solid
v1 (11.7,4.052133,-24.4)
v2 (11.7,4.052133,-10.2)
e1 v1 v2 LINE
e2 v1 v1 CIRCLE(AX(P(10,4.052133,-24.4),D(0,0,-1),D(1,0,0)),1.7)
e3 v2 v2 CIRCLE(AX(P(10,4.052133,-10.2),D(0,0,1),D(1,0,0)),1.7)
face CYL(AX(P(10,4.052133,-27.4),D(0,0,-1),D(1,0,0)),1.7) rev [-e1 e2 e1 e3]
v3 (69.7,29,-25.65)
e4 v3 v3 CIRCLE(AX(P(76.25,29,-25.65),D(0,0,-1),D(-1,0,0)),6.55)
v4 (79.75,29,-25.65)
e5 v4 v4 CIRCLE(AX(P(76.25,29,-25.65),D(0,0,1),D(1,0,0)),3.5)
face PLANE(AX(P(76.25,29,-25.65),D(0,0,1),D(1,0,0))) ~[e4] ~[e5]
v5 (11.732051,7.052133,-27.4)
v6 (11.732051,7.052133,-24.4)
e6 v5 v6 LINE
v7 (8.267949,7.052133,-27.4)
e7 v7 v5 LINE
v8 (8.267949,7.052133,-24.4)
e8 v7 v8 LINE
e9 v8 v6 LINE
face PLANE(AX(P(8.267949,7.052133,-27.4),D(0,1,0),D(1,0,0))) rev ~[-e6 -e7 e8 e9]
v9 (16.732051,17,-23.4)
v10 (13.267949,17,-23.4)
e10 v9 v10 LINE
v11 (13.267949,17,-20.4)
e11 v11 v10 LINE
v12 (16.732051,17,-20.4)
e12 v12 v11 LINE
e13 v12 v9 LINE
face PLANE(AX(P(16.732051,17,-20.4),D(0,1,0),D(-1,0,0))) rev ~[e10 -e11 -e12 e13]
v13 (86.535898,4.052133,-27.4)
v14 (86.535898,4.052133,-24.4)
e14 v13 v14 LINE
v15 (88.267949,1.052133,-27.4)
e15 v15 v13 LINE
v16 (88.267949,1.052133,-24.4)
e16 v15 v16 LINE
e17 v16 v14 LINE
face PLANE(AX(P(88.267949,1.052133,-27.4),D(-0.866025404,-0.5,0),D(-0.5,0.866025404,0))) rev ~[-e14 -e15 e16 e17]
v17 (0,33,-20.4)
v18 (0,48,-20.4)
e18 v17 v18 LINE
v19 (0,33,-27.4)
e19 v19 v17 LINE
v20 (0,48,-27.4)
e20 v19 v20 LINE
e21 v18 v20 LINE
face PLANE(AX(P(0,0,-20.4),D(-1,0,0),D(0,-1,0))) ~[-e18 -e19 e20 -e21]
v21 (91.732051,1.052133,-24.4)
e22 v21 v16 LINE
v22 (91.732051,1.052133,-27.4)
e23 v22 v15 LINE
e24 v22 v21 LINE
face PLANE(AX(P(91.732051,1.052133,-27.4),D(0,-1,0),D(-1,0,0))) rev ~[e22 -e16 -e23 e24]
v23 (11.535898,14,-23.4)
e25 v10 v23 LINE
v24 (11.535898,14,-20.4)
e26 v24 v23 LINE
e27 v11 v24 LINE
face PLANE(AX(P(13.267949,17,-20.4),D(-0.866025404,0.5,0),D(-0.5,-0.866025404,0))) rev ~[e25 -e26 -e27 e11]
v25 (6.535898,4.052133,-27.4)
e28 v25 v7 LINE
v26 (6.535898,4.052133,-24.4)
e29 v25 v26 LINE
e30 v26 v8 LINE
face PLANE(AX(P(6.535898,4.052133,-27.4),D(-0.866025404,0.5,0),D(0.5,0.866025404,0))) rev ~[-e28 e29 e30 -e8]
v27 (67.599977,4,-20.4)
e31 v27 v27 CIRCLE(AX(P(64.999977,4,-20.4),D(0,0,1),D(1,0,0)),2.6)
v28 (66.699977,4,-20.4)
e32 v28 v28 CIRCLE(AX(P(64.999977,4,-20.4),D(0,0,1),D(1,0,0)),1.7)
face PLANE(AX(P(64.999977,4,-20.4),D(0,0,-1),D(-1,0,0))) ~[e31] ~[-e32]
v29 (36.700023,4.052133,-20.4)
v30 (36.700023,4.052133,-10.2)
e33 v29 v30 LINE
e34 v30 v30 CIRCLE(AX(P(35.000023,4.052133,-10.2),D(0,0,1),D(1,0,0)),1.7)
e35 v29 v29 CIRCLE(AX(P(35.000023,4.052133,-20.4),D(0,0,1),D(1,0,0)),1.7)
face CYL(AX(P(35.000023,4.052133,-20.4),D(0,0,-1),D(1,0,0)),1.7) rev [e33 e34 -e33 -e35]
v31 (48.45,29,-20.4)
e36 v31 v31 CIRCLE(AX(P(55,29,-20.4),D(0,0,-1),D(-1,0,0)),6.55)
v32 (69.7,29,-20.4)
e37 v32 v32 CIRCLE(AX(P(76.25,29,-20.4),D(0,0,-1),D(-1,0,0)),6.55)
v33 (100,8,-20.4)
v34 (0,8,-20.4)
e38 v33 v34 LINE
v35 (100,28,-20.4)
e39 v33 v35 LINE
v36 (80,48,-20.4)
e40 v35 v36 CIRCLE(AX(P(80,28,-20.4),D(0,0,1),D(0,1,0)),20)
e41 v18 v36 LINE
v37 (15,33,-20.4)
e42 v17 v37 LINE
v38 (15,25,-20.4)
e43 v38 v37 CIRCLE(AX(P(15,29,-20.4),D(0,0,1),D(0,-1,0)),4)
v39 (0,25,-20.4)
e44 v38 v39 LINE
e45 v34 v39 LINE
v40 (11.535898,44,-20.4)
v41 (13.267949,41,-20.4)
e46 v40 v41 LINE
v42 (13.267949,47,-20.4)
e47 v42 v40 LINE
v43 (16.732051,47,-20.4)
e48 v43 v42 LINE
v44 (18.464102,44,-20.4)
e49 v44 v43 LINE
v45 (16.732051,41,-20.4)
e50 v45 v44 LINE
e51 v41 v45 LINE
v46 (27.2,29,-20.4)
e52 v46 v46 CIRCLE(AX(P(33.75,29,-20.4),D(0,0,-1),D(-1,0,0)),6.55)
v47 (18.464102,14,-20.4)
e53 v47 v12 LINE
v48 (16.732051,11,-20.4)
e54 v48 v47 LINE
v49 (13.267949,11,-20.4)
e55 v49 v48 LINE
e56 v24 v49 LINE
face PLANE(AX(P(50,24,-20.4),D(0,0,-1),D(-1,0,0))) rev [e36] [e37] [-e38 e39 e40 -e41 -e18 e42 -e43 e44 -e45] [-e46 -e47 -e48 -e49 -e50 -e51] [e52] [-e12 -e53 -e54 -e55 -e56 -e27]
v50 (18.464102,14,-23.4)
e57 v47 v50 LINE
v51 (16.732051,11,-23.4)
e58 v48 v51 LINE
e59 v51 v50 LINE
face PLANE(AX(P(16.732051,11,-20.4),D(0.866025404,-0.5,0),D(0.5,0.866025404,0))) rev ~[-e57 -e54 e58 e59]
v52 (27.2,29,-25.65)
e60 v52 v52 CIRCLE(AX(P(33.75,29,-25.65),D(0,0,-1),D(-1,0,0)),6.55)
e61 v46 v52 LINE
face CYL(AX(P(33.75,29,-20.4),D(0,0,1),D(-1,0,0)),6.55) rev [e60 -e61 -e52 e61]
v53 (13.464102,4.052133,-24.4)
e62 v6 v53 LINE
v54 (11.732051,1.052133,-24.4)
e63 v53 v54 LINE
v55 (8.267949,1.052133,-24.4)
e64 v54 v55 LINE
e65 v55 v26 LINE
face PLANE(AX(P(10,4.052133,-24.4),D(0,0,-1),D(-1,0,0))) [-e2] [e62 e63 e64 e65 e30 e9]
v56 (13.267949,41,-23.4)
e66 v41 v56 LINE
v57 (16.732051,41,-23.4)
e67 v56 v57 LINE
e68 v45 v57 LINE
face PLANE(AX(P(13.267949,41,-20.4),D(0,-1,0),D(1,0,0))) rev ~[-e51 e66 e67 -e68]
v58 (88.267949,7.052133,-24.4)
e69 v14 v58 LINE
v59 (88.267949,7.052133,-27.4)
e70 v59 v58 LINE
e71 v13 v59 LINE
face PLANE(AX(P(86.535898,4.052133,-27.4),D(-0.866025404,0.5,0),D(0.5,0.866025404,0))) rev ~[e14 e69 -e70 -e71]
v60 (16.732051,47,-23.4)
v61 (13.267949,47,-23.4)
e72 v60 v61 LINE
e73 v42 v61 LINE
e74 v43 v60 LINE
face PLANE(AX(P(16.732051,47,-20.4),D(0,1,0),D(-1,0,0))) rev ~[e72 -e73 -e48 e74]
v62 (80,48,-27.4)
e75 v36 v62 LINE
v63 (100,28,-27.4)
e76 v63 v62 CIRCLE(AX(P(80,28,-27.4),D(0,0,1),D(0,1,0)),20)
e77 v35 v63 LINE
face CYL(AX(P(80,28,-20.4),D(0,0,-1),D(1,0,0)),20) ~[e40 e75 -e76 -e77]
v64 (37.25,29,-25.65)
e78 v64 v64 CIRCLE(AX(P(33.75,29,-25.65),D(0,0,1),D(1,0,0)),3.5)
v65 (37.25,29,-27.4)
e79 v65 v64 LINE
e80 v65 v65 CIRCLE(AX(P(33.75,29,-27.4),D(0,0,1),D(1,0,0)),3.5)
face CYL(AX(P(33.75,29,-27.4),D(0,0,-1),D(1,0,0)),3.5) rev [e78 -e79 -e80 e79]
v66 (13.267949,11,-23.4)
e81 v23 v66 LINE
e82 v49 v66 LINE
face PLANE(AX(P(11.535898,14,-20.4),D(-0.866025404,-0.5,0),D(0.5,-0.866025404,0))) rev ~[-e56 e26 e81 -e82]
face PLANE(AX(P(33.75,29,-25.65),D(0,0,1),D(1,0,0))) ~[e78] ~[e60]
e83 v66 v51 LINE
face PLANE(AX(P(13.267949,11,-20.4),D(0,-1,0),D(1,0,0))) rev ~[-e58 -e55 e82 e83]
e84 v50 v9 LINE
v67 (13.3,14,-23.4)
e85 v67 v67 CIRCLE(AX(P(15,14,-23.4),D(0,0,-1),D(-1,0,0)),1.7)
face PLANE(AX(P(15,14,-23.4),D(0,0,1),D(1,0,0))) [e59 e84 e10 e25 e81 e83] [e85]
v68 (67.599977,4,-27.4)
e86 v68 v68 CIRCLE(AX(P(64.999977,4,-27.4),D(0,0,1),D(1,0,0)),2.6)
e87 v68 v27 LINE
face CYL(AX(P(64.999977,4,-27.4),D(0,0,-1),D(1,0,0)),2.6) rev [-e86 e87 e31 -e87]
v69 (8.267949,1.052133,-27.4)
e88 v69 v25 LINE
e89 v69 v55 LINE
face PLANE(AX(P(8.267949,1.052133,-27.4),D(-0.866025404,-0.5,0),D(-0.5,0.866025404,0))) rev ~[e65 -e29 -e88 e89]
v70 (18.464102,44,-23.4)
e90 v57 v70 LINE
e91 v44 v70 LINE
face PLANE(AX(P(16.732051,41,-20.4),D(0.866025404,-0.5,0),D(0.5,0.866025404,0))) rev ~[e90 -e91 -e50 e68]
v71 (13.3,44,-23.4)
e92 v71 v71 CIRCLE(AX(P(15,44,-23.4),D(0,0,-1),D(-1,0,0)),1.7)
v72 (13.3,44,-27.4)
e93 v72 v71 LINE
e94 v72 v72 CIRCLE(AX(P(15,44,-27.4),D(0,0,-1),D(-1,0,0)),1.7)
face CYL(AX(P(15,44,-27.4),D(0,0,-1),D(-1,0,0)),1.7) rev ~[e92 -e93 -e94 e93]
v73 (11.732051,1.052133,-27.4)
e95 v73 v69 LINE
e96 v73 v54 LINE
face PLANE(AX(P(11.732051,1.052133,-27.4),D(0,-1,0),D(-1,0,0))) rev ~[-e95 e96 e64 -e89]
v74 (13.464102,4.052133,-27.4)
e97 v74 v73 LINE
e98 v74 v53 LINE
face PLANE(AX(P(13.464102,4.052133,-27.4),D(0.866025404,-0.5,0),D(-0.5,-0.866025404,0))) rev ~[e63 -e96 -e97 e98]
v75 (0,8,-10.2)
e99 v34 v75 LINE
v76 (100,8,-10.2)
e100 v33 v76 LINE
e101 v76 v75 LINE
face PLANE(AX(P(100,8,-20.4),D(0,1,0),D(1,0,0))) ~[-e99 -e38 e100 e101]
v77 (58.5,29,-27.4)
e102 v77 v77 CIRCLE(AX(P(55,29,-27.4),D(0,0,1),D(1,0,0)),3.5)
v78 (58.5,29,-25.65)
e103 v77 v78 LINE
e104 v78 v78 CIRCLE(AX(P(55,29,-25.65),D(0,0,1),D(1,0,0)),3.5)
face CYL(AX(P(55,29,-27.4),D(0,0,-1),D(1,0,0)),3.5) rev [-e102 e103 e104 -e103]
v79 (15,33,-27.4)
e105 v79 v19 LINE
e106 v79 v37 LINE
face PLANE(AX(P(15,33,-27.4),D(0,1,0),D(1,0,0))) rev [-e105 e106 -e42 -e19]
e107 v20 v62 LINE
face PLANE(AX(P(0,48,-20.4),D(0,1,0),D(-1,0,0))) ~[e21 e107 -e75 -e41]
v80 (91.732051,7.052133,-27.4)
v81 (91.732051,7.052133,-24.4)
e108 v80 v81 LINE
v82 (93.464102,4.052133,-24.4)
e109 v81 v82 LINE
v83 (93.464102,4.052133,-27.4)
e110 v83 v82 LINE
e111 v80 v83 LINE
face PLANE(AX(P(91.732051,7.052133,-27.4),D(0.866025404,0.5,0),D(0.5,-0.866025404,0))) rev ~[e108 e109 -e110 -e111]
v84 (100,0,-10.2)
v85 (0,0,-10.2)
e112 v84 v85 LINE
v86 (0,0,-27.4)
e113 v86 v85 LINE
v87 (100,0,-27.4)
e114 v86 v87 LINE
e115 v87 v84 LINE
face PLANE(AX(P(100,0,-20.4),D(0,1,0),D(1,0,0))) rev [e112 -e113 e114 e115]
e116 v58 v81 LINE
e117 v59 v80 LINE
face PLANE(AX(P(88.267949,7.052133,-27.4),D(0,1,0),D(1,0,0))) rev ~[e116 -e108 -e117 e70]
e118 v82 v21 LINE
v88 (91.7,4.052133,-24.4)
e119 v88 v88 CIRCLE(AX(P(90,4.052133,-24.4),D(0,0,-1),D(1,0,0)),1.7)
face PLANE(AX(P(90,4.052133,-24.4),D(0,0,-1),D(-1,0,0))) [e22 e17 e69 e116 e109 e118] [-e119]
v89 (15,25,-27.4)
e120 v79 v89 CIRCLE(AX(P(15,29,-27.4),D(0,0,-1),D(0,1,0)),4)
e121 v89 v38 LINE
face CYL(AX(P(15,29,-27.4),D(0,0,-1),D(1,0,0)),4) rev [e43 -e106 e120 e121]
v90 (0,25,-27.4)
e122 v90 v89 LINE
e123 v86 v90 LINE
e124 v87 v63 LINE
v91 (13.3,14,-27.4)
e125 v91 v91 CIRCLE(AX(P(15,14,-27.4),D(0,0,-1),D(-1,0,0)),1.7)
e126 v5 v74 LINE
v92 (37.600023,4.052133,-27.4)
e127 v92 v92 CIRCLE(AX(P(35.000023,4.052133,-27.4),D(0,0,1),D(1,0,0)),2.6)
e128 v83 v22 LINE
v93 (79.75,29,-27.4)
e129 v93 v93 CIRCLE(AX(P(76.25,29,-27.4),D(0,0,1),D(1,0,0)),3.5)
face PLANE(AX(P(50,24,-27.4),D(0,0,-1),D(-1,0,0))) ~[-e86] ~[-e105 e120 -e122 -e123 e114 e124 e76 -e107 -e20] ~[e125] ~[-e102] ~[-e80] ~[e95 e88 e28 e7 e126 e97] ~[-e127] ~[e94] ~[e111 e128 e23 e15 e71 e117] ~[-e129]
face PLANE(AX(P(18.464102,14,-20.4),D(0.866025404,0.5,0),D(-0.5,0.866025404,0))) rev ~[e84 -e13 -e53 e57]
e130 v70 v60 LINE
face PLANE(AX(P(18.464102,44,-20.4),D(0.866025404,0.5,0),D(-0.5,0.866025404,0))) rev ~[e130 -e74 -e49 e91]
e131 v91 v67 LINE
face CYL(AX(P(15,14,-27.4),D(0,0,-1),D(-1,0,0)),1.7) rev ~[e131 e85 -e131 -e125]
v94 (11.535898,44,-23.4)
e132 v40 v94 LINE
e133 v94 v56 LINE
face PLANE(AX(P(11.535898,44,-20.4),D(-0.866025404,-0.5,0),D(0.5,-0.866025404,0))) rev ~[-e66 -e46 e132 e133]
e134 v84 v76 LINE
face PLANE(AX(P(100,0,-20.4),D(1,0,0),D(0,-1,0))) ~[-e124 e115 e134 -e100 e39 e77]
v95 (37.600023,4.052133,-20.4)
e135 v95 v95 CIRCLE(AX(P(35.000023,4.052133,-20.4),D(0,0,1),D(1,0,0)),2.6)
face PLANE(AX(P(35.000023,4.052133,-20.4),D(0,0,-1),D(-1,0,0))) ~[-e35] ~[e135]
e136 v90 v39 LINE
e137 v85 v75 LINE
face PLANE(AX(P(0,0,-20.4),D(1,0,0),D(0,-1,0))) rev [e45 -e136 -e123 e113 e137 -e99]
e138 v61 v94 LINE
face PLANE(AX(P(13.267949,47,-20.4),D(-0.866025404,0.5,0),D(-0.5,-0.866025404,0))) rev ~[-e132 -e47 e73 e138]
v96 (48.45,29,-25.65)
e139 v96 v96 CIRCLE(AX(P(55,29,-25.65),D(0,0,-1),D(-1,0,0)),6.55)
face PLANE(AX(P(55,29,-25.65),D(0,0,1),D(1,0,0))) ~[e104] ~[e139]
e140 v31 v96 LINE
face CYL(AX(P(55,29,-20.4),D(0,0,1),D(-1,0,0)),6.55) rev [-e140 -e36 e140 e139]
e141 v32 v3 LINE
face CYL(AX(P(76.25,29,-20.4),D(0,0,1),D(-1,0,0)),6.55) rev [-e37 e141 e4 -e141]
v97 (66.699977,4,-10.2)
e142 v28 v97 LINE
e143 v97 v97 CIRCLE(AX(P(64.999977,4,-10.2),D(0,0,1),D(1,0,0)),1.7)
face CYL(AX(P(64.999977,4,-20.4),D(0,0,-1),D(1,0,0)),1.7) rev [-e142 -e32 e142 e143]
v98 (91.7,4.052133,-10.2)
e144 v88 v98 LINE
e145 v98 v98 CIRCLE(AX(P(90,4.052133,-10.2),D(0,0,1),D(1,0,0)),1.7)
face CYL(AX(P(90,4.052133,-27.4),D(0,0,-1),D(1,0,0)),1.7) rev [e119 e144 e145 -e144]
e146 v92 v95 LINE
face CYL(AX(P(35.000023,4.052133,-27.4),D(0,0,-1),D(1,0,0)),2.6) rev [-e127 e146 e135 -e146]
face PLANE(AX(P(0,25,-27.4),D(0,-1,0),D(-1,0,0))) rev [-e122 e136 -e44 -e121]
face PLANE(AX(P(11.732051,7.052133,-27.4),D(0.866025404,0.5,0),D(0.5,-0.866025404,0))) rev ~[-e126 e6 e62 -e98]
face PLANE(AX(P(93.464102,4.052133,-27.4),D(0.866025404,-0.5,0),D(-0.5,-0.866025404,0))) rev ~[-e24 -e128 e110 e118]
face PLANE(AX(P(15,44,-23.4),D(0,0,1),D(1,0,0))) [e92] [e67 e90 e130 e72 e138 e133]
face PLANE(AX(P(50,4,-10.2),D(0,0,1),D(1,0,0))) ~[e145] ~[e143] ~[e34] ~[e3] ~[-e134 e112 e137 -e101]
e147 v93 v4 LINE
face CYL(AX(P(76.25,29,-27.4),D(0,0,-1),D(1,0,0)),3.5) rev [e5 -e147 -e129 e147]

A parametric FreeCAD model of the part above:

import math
import FreeCAD as App
import Part
import Sketcher
Q = App.Units.Quantity


def edges_at(feature, points):
    """Names of the edges that pass closest to the given points."""
    edges = feature.Shape.Edges
    near = lambda p: min(range(len(edges)), key=lambda i: edges[i].distToShape(Part.Vertex(*p))[0])
    return sorted({f"Edge{near(p) + 1}" for p in points})


def add_polygon(sketch, points):
    """Adds a closed chain of lines whose ends are joined by coincident constraints."""
    first, n = sketch.GeometryCount, len(points)
    for a, b in zip(points, points[1:] + points[:1]):
        sketch.addGeometry(Part.LineSegment(App.Vector(*a, 0), App.Vector(*b, 0)), False)
    for i in range(n):
        sketch.addConstraint(Sketcher.Constraint("Coincident", first + i, 2, first + (i + 1) % n, 1))

doc = App.newDocument("Part")
params = doc.addObject("Spreadsheet::Sheet", "Params")
for row, (alias, value) in enumerate([
    ("sketch1_width", "100 mm"),
    ("sketch1_height", "48 mm"),
    ("pad1_length", "7 mm"),
    ("sketch2_radius", "4 mm"),
    ("sketch2_width", "15 mm"),
    ("sketch3_diameter", "8 mm"),
    ("sketch4_diameter", "7 mm"),
    ("sketch5_diameter", "7 mm"),
    ("sketch6_diameter", "7 mm"),
    ("sketch7_width", "100 mm"),
    ("sketch7_height", "8 mm"),
    ("pad2_length", "10.2 mm"),
    ("sketch8_diameter", "13.1 mm"),
    ("pocket6_length", "5.25 mm"),
    ("sketch9_diameter", "5.2 mm"),
    ("pocket7_length", "7 mm"),
    ("sketch10_diameter", "3.4 mm"),
    ("sketch11_diameter", "3.4 mm"),
    ("sketch12_diameter", "3.4 mm"),
    ("pocket11_length", "3 mm"),
    ("sketch14_diameter", "3.4 mm"),
    ("sketch15_diameter", "3.4 mm"),
    ("pocket14_length", "3 mm"),
    ("fillet_radius", "20 mm"),
], start=1):
    params.set(f"A{row}", alias)
    params.set(f"B{row}", "=" + value)
    params.setAlias(f"B{row}", alias)

body = doc.addObject("PartDesign::Body", "Body")

# Sketch on XY plane
sketch1 = body.newObject("Sketcher::SketchObject", "Sketch")
sketch1.AttachmentSupport = (doc.getObject("XY_Plane"), [""])
sketch1.MapMode = "FlatFace"
add_polygon(sketch1, [(0, 48), (0, 0), (100, 0), (100, 48)])  # lines 0-3
sketch1.addConstraint(Sketcher.Constraint("Vertical", 0))
sketch1.addConstraint(Sketcher.Constraint("Horizontal", 1))
sketch1.addConstraint(Sketcher.Constraint("Vertical", 2))
sketch1.addConstraint(Sketcher.Constraint("Horizontal", 3))
sketch1.addConstraint(Sketcher.Constraint("Coincident", 0, 2, -1, 1))
sketch1.addConstraint(Sketcher.Constraint("DistanceX", 1, 1, 1, 2, 100.0))
sketch1.addConstraint(Sketcher.Constraint("DistanceY", 0, 2, 0, 1, 48.0))
sketch1.setExpression("Constraints[9]", "Params.sketch1_width")
sketch1.setExpression("Constraints[10]", "Params.sketch1_height")
pad1 = body.newObject("PartDesign::Pad", "Pad")
pad1.Profile = sketch1
pad1.setExpression("Length", "Params.pad1_length")

# Sketch on XY plane
sketch2 = body.newObject("Sketcher::SketchObject", "Sketch001")
sketch2.AttachmentSupport = (doc.getObject("XY_Plane"), [""])
sketch2.MapMode = "FlatFace"
sketch2.AttachmentOffset = App.Placement(App.Vector(0, 0, 7), App.Rotation())
sketch2.addGeometry(Part.ArcOfCircle(Part.Circle(App.Vector(15, 29, 0), App.Vector(0, 0, 1), 4), math.radians(90), math.radians(270)), False)
sketch2.addGeometry(Part.LineSegment(App.Vector(15, 33, 0), App.Vector(0, 33, 0)), False)
sketch2.addGeometry(Part.LineSegment(App.Vector(0, 33, 0), App.Vector(0, 25, 0)), False)
sketch2.addGeometry(Part.LineSegment(App.Vector(0, 25, 0), App.Vector(15, 25, 0)), False)
sketch2.addConstraint(Sketcher.Constraint("Tangent", 0, 1, 1, 1))
sketch2.addConstraint(Sketcher.Constraint("Coincident", 1, 2, 2, 1))
sketch2.addConstraint(Sketcher.Constraint("Coincident", 2, 2, 3, 1))
sketch2.addConstraint(Sketcher.Constraint("Tangent", 3, 2, 0, 2))
sketch2.addConstraint(Sketcher.Constraint("Horizontal", 1))
sketch2.addConstraint(Sketcher.Constraint("Vertical", 2))
sketch2.addConstraint(Sketcher.Constraint("Horizontal", 3))
sketch2.addConstraint(Sketcher.Constraint("PointOnObject", 1, 2, -2))
sketch2.addConstraint(Sketcher.Constraint("Radius", 0, 4.0))
sketch2.addConstraint(Sketcher.Constraint("DistanceX", 1, 2, 1, 1, 15.0))
sketch2.addConstraint(Sketcher.Constraint("DistanceY", -1, 1, 0, 3, 29.0))
sketch2.setExpression("Constraints[8]", "Params.sketch2_radius")
sketch2.setExpression("Constraints[9]", "Params.sketch2_width")
pocket1 = body.newObject("PartDesign::Pocket", "Pocket")
pocket1.Profile = sketch2
pocket1.Type = "UpToFirst"

# Sketch on XY plane
sketch3 = body.newObject("Sketcher::SketchObject", "Sketch002")
sketch3.AttachmentSupport = (doc.getObject("XY_Plane"), [""])
sketch3.MapMode = "FlatFace"
sketch3.AttachmentOffset = App.Placement(App.Vector(0, 0, 7), App.Rotation())
sketch3.addGeometry(Part.Circle(App.Vector(15, 29, 0), App.Vector(0, 0, 1), 4), False)
sketch3.addConstraint(Sketcher.Constraint("Diameter", 0, 8.0))
sketch3.addConstraint(Sketcher.Constraint("DistanceX", -1, 1, 0, 3, 15.0))
sketch3.addConstraint(Sketcher.Constraint("DistanceY", -1, 1, 0, 3, 29.0))
sketch3.setExpression("Constraints[0]", "Params.sketch3_diameter")
pocket2 = body.newObject("PartDesign::Pocket", "Pocket001")
pocket2.Profile = sketch3
pocket2.Type = "UpToFirst"

# Sketch on XY plane
sketch4 = body.newObject("Sketcher::SketchObject", "Sketch003")
sketch4.AttachmentSupport = (doc.getObject("XY_Plane"), [""])
sketch4.MapMode = "FlatFace"
sketch4.AttachmentOffset = App.Placement(App.Vector(0, 0, 7), App.Rotation())
sketch4.addGeometry(Part.Circle(App.Vector(33.8, 29, 0), App.Vector(0, 0, 1), 3.5), False)
sketch4.addConstraint(Sketcher.Constraint("Diameter", 0, 7.0))
sketch4.addConstraint(Sketcher.Constraint("DistanceY", -1, 1, 0, 3, 29.0))
sketch4.addConstraint(Sketcher.Constraint("DistanceX", -1, 1, 0, 3, 33.75))
sketch4.setExpression("Constraints[0]", "Params.sketch4_diameter")
pocket3 = body.newObject("PartDesign::Pocket", "Pocket002")
pocket3.Profile = sketch4
pocket3.Type = "UpToFirst"

# Sketch on XY plane
sketch5 = body.newObject("Sketcher::SketchObject", "Sketch004")
sketch5.AttachmentSupport = (doc.getObject("XY_Plane"), [""])
sketch5.MapMode = "FlatFace"
sketch5.AttachmentOffset = App.Placement(App.Vector(0, 0, 7), App.Rotation())
sketch5.addGeometry(Part.Circle(App.Vector(55, 29, 0), App.Vector(0, 0, 1), 3.5), False)
sketch5.addConstraint(Sketcher.Constraint("Diameter", 0, 7.0))
sketch5.addConstraint(Sketcher.Constraint("DistanceX", -1, 1, 0, 3, 55.0))
sketch5.addConstraint(Sketcher.Constraint("DistanceY", -1, 1, 0, 3, 29.0))
sketch5.setExpression("Constraints[0]", "Params.sketch5_diameter")
pocket4 = body.newObject("PartDesign::Pocket", "Pocket003")
pocket4.Profile = sketch5
pocket4.Type = "UpToFirst"

# Sketch on XY plane
sketch6 = body.newObject("Sketcher::SketchObject", "Sketch005")
sketch6.AttachmentSupport = (doc.getObject("XY_Plane"), [""])
sketch6.MapMode = "FlatFace"
sketch6.AttachmentOffset = App.Placement(App.Vector(0, 0, 7), App.Rotation())
sketch6.addGeometry(Part.Circle(App.Vector(76.2, 29, 0), App.Vector(0, 0, 1), 3.5), False)
sketch6.addConstraint(Sketcher.Constraint("Diameter", 0, 7.0))
sketch6.addConstraint(Sketcher.Constraint("DistanceY", -1, 1, 0, 3, 29.0))
sketch6.addConstraint(Sketcher.Constraint("DistanceX", -1, 1, 0, 3, 76.25))
sketch6.setExpression("Constraints[0]", "Params.sketch6_diameter")
pocket5 = body.newObject("PartDesign::Pocket", "Pocket004")
pocket5.Profile = sketch6
pocket5.Type = "UpToFirst"

# Sketch on XY plane
sketch7 = body.newObject("Sketcher::SketchObject", "Sketch006")
sketch7.AttachmentSupport = (doc.getObject("XY_Plane"), [""])
sketch7.MapMode = "FlatFace"
add_polygon(sketch7, [(100, 8), (100, 0), (0, 0), (0, 8)])  # lines 0-3
sketch7.addConstraint(Sketcher.Constraint("Vertical", 0))
sketch7.addConstraint(Sketcher.Constraint("Horizontal", 1))
sketch7.addConstraint(Sketcher.Constraint("Vertical", 2))
sketch7.addConstraint(Sketcher.Constraint("Horizontal", 3))
sketch7.addConstraint(Sketcher.Constraint("Coincident", 1, 2, -1, 1))
sketch7.addConstraint(Sketcher.Constraint("DistanceX", 1, 2, 1, 1, 100.0))
sketch7.addConstraint(Sketcher.Constraint("DistanceY", 0, 2, 0, 1, 8.0))
sketch7.setExpression("Constraints[9]", "Params.sketch7_width")
sketch7.setExpression("Constraints[10]", "Params.sketch7_height")
pad2 = body.newObject("PartDesign::Pad", "Pad001")
pad2.Profile = sketch7
pad2.setExpression("Length", "Params.pad2_length")
pad2.Reversed = True

# Sketch on XY plane
sketch8 = body.newObject("Sketcher::SketchObject", "Sketch007")
sketch8.AttachmentSupport = (doc.getObject("XY_Plane"), [""])
sketch8.MapMode = "FlatFace"
sketch8.addGeometry(Part.Circle(App.Vector(76, 29, 0), App.Vector(0, 0, 1), 7), False)
sketch8.addGeometry(Part.Circle(App.Vector(55, 29, 0), App.Vector(0, 0, 1), 7), False)
sketch8.addGeometry(Part.Circle(App.Vector(34, 29, 0), App.Vector(0, 0, 1), 7), False)
sketch8.addConstraint(Sketcher.Constraint("Equal", 0, 1))
sketch8.addConstraint(Sketcher.Constraint("Equal", 1, 2))
sketch8.addConstraint(Sketcher.Constraint("Horizontal", 0, 3, 1, 3))
sketch8.addConstraint(Sketcher.Constraint("Horizontal", 1, 3, 2, 3))
sketch8.addConstraint(Sketcher.Constraint("Diameter", 0, 13.1))
sketch8.addConstraint(Sketcher.Constraint("DistanceY", -1, 1, 0, 3, 29.0))
sketch8.addConstraint(Sketcher.Constraint("DistanceX", -1, 1, 1, 3, 55.0))
sketch8.addConstraint(Sketcher.Constraint("DistanceX", 2, 3, 0, 3, 42.5))
sketch8.addConstraint(Sketcher.Constraint("DistanceX", -1, 1, 0, 3, 76.25))
sketch8.setExpression("Constraints[4]", "Params.sketch8_diameter")
pocket6 = body.newObject("PartDesign::Pocket", "Pocket005")
pocket6.Profile = sketch8
pocket6.setExpression("Length", "Params.pocket6_length")
pocket6.Reversed = True

# Sketch on XY plane
sketch9 = body.newObject("Sketcher::SketchObject", "Sketch008")
sketch9.AttachmentSupport = (doc.getObject("XY_Plane"), [""])
sketch9.MapMode = "FlatFace"
sketch9.AttachmentOffset = App.Placement(App.Vector(0, 0, 7), App.Rotation())
sketch9.addGeometry(Part.Circle(App.Vector(35.000023, 4.052133, 0), App.Vector(0, 0, 1), 2.6), False)
sketch9.addGeometry(Part.Circle(App.Vector(64.999977, 4, 0), App.Vector(0, 0, 1), 2.6), False)
sketch9.addConstraint(Sketcher.Constraint("Equal", 0, 1))
sketch9.addConstraint(Sketcher.Constraint("Diameter", 0, 5.2))
sketch9.addConstraint(Sketcher.Constraint("DistanceY", -1, 1, 1, 3, 4.0))
sketch9.addConstraint(Sketcher.Constraint("DistanceX", -1, 1, 0, 3, 35.000023))
sketch9.addConstraint(Sketcher.Constraint("DistanceY", -1, 1, 0, 3, 4.052133))
sketch9.addConstraint(Sketcher.Constraint("DistanceX", -1, 1, 1, 3, 64.999977))
sketch9.setExpression("Constraints[1]", "Params.sketch9_diameter")
pocket7 = body.newObject("PartDesign::Pocket", "Pocket006")
pocket7.Profile = sketch9
pocket7.setExpression("Length", "Params.pocket7_length")

# Sketch on XY plane
sketch10 = body.newObject("Sketcher::SketchObject", "Sketch009")
sketch10.AttachmentSupport = (doc.getObject("XY_Plane"), [""])
sketch10.MapMode = "FlatFace"
sketch10.addGeometry(Part.Circle(App.Vector(35.000023, 4.052133, 0), App.Vector(0, 0, 1), 1.7), False)
sketch10.addGeometry(Part.Circle(App.Vector(64.999977, 4, 0), App.Vector(0, 0, 1), 1.7), False)
sketch10.addConstraint(Sketcher.Constraint("Equal", 0, 1))
sketch10.addConstraint(Sketcher.Constraint("Diameter", 0, 3.4))
sketch10.addConstraint(Sketcher.Constraint("DistanceY", -1, 1, 1, 3, 4.0))
sketch10.addConstraint(Sketcher.Constraint("DistanceX", -1, 1, 0, 3, 35.000023))
sketch10.addConstraint(Sketcher.Constraint("DistanceY", -1, 1, 0, 3, 4.052133))
sketch10.addConstraint(Sketcher.Constraint("DistanceX", -1, 1, 1, 3, 64.999977))
sketch10.setExpression("Constraints[1]", "Params.sketch10_diameter")
pocket8 = body.newObject("PartDesign::Pocket", "Pocket007")
pocket8.Profile = sketch10
pocket8.Type = "ThroughAll"

# Sketch on XY plane
sketch11 = body.newObject("Sketcher::SketchObject", "Sketch010")
sketch11.AttachmentSupport = (doc.getObject("XY_Plane"), [""])
sketch11.MapMode = "FlatFace"
sketch11.AttachmentOffset = App.Placement(App.Vector(0, 0, 7), App.Rotation())
sketch11.addGeometry(Part.Circle(App.Vector(10, 4.1, 0), App.Vector(0, 0, 1), 1.7), False)
sketch11.addConstraint(Sketcher.Constraint("Diameter", 0, 3.4))
sketch11.addConstraint(Sketcher.Constraint("DistanceX", -1, 1, 0, 3, 10.0))
sketch11.addConstraint(Sketcher.Constraint("DistanceY", -1, 1, 0, 3, 4.052133))
sketch11.setExpression("Constraints[0]", "Params.sketch11_diameter")
pocket9 = body.newObject("PartDesign::Pocket", "Pocket008")
pocket9.Profile = sketch11
pocket9.Type = "UpToFirst"

# Sketch on XY plane
sketch12 = body.newObject("Sketcher::SketchObject", "Sketch011")
sketch12.AttachmentSupport = (doc.getObject("XY_Plane"), [""])
sketch12.MapMode = "FlatFace"
sketch12.AttachmentOffset = App.Placement(App.Vector(0, 0, 7), App.Rotation())
sketch12.addGeometry(Part.Circle(App.Vector(90, 4.1, 0), App.Vector(0, 0, 1), 1.7), False)
sketch12.addConstraint(Sketcher.Constraint("Diameter", 0, 3.4))
sketch12.addConstraint(Sketcher.Constraint("DistanceX", -1, 1, 0, 3, 90.0))
sketch12.addConstraint(Sketcher.Constraint("DistanceY", -1, 1, 0, 3, 4.052133))
sketch12.setExpression("Constraints[0]", "Params.sketch12_diameter")
pocket10 = body.newObject("PartDesign::Pocket", "Pocket009")
pocket10.Profile = sketch12
pocket10.Type = "UpToFirst"
body2 = doc.addObject("PartDesign::Body", "Body001")
doc.recompute()

mirroring = doc.addObject("Part::Mirroring", "Mirroring")
mirroring.Source = body
mirroring.Base = App.Vector(0, 0, -10.2)
mirroring.Normal = App.Vector(0, 0, 1)
body2.BaseFeature = mirroring
doc.recompute()

# Sketch on XY plane
sketch13 = body2.newObject("Sketcher::SketchObject", "Sketch012")
sketch13.AttachmentSupport = (doc.getObject("XY_Plane001"), [""])
sketch13.MapMode = "FlatFace"
sketch13.AttachmentOffset = App.Placement(App.Vector(0, 0, -27.4), App.Rotation())
add_polygon(sketch13, [(88.3, 1.1), (86.5, 4.1), (88.3, 7.1), (91.7, 7.1), (93.5, 4.1), (91.7, 1.1)])  # lines 0-5
add_polygon(sketch13, [(13.5, 4.1), (11.7, 1.1), (8.3, 1.1), (6.5, 4.1), (8.3, 7.1), (11.7, 7.1)])  # lines 6-11
sketch13.addConstraint(Sketcher.Constraint("Horizontal", 2))
sketch13.addConstraint(Sketcher.Constraint("Horizontal", 5))
sketch13.addConstraint(Sketcher.Constraint("Horizontal", 7))
sketch13.addConstraint(Sketcher.Constraint("Horizontal", 10))
sketch13.addConstraint(Sketcher.Constraint("Parallel", 0, 3))
sketch13.addConstraint(Sketcher.Constraint("Parallel", 1, 4))
sketch13.addConstraint(Sketcher.Constraint("Parallel", 4, 6))
sketch13.addConstraint(Sketcher.Constraint("Parallel", 3, 8))
sketch13.addConstraint(Sketcher.Constraint("Parallel", 6, 9))
sketch13.addConstraint(Sketcher.Constraint("Parallel", 8, 11))
sketch13.addConstraint(Sketcher.Constraint("Horizontal", 0, 2, 3, 2))
sketch13.addConstraint(Sketcher.Constraint("Horizontal", 5, 2, 6, 2))
sketch13.addConstraint(Sketcher.Constraint("Horizontal", 3, 2, 8, 2))
sketch13.addConstraint(Sketcher.Constraint("Horizontal", 2, 2, 9, 2))
sketch13.addConstraint(Sketcher.Constraint("Horizontal", 8, 2, 11, 2))
sketch13.addConstraint(Sketcher.Constraint("Vertical", 2, 2, 4, 2))
sketch13.addConstraint(Sketcher.Constraint("Vertical", 1, 2, 5, 2))
sketch13.addConstraint(Sketcher.Constraint("Equal", 5, 7))
sketch13.addConstraint(Sketcher.Constraint("Angle", 0, Q("120 deg")))
sketch13.addConstraint(Sketcher.Constraint("DistanceY", 0, 2, 1, 2, 3.0))
sketch13.addConstraint(Sketcher.Constraint("DistanceX", 6, 2, 4, 2, 80.0))
sketch13.addConstraint(Sketcher.Constraint("DistanceX", 2, 1, 2, 2, 3.464102))
sketch13.addConstraint(Sketcher.Constraint("DistanceX", -1, 1, 0, 2, 86.535898))
sketch13.addConstraint(Sketcher.Constraint("DistanceY", -1, 1, 0, 2, 4.052133))
pocket11 = body2.newObject("PartDesign::Pocket", "Pocket010")
pocket11.Profile = sketch13
pocket11.setExpression("Length", "Params.pocket11_length")
pocket11.Reversed = True

# Sketch on XY plane
sketch14 = body2.newObject("Sketcher::SketchObject", "Sketch013")
sketch14.AttachmentSupport = (doc.getObject("XY_Plane001"), [""])
sketch14.MapMode = "FlatFace"
sketch14.AttachmentOffset = App.Placement(App.Vector(0, 0, -27.4), App.Rotation())
sketch14.addGeometry(Part.Circle(App.Vector(15, 44, 0), App.Vector(0, 0, 1), 1.7), False)
sketch14.addConstraint(Sketcher.Constraint("Diameter", 0, 3.4))
sketch14.addConstraint(Sketcher.Constraint("DistanceX", -1, 1, 0, 3, 15.0))
sketch14.addConstraint(Sketcher.Constraint("DistanceY", -1, 1, 0, 3, 44.0))
sketch14.setExpression("Constraints[0]", "Params.sketch14_diameter")
pocket12 = body2.newObject("PartDesign::Pocket", "Pocket011")
pocket12.Profile = sketch14
pocket12.Type = "UpToFirst"
pocket12.Reversed = True

# Sketch on XY plane
sketch15 = body2.newObject("Sketcher::SketchObject", "Sketch014")
sketch15.AttachmentSupport = (doc.getObject("XY_Plane001"), [""])
sketch15.MapMode = "FlatFace"
sketch15.AttachmentOffset = App.Placement(App.Vector(0, 0, -27.4), App.Rotation())
sketch15.addGeometry(Part.Circle(App.Vector(15, 14, 0), App.Vector(0, 0, 1), 1.7), False)
sketch15.addConstraint(Sketcher.Constraint("Diameter", 0, 3.4))
sketch15.addConstraint(Sketcher.Constraint("DistanceX", -1, 1, 0, 3, 15.0))
sketch15.addConstraint(Sketcher.Constraint("DistanceY", -1, 1, 0, 3, 14.0))
sketch15.setExpression("Constraints[0]", "Params.sketch15_diameter")
pocket13 = body2.newObject("PartDesign::Pocket", "Pocket012")
pocket13.Profile = sketch15
pocket13.Type = "UpToFirst"
pocket13.Reversed = True

# Sketch on XY plane
sketch16 = body2.newObject("Sketcher::SketchObject", "Sketch015")
sketch16.AttachmentSupport = (doc.getObject("XY_Plane001"), [""])
sketch16.MapMode = "FlatFace"
sketch16.AttachmentOffset = App.Placement(App.Vector(0, 0, -20.4), App.Rotation())
add_polygon(sketch16, [(18.5, 44), (16.7, 47), (13.3, 47), (11.5, 44), (13.3, 41), (16.7, 41)])  # lines 0-5
add_polygon(sketch16, [(18.5, 14), (16.7, 17), (13.3, 17), (11.5, 14), (13.3, 11), (16.7, 11)])  # lines 6-11
sketch16.addConstraint(Sketcher.Constraint("Horizontal", 1))
sketch16.addConstraint(Sketcher.Constraint("Horizontal", 4))
sketch16.addConstraint(Sketcher.Constraint("Horizontal", 7))
sketch16.addConstraint(Sketcher.Constraint("Horizontal", 10))
sketch16.addConstraint(Sketcher.Constraint("Parallel", 0, 3))
sketch16.addConstraint(Sketcher.Constraint("Parallel", 2, 5))
sketch16.addConstraint(Sketcher.Constraint("Parallel", 3, 6))
sketch16.addConstraint(Sketcher.Constraint("Parallel", 5, 8))
sketch16.addConstraint(Sketcher.Constraint("Parallel", 6, 9))
sketch16.addConstraint(Sketcher.Constraint("Parallel", 8, 11))
sketch16.addConstraint(Sketcher.Constraint("Horizontal", 2, 2, 5, 2))
sketch16.addConstraint(Sketcher.Constraint("Horizontal", 8, 2, 11, 2))
sketch16.addConstraint(Sketcher.Constraint("Vertical", 1, 2, 3, 2))
sketch16.addConstraint(Sketcher.Constraint("Vertical", 0, 2, 4, 2))
sketch16.addConstraint(Sketcher.Constraint("Vertical", 4, 2, 6, 2))
sketch16.addConstraint(Sketcher.Constraint("Vertical", 3, 2, 7, 2))
sketch16.addConstraint(Sketcher.Constraint("Vertical", 2, 2, 8, 2))
sketch16.addConstraint(Sketcher.Constraint("Vertical", 7, 2, 9, 2))
sketch16.addConstraint(Sketcher.Constraint("Angle", 0, Q("120 deg")))
sketch16.addConstraint(Sketcher.Constraint("DistanceY", -1, 1, 0, 2, 47.0))
sketch16.addConstraint(Sketcher.Constraint("DistanceY", -1, 1, 2, 2, 44.0))
sketch16.addConstraint(Sketcher.Constraint("DistanceY", -1, 1, 6, 2, 17.0))
sketch16.addConstraint(Sketcher.Constraint("DistanceX", 1, 2, 1, 1, 3.464102))
sketch16.addConstraint(Sketcher.Constraint("DistanceX", -1, 1, 2, 2, 11.535898))
pocket14 = body2.newObject("PartDesign::Pocket", "Pocket013")
pocket14.Profile = sketch16
pocket14.setExpression("Length", "Params.pocket14_length")
doc.recompute()

fillet = body2.newObject("PartDesign::Fillet", "Fillet")
fillet.Base = (pocket14, edges_at(pocket14, [(100, 48, -23.9)]))
fillet.setExpression("Radius", "Params.fillet_radius")
body.Visibility = False
mirroring.Visibility = False

doc.recompute()
